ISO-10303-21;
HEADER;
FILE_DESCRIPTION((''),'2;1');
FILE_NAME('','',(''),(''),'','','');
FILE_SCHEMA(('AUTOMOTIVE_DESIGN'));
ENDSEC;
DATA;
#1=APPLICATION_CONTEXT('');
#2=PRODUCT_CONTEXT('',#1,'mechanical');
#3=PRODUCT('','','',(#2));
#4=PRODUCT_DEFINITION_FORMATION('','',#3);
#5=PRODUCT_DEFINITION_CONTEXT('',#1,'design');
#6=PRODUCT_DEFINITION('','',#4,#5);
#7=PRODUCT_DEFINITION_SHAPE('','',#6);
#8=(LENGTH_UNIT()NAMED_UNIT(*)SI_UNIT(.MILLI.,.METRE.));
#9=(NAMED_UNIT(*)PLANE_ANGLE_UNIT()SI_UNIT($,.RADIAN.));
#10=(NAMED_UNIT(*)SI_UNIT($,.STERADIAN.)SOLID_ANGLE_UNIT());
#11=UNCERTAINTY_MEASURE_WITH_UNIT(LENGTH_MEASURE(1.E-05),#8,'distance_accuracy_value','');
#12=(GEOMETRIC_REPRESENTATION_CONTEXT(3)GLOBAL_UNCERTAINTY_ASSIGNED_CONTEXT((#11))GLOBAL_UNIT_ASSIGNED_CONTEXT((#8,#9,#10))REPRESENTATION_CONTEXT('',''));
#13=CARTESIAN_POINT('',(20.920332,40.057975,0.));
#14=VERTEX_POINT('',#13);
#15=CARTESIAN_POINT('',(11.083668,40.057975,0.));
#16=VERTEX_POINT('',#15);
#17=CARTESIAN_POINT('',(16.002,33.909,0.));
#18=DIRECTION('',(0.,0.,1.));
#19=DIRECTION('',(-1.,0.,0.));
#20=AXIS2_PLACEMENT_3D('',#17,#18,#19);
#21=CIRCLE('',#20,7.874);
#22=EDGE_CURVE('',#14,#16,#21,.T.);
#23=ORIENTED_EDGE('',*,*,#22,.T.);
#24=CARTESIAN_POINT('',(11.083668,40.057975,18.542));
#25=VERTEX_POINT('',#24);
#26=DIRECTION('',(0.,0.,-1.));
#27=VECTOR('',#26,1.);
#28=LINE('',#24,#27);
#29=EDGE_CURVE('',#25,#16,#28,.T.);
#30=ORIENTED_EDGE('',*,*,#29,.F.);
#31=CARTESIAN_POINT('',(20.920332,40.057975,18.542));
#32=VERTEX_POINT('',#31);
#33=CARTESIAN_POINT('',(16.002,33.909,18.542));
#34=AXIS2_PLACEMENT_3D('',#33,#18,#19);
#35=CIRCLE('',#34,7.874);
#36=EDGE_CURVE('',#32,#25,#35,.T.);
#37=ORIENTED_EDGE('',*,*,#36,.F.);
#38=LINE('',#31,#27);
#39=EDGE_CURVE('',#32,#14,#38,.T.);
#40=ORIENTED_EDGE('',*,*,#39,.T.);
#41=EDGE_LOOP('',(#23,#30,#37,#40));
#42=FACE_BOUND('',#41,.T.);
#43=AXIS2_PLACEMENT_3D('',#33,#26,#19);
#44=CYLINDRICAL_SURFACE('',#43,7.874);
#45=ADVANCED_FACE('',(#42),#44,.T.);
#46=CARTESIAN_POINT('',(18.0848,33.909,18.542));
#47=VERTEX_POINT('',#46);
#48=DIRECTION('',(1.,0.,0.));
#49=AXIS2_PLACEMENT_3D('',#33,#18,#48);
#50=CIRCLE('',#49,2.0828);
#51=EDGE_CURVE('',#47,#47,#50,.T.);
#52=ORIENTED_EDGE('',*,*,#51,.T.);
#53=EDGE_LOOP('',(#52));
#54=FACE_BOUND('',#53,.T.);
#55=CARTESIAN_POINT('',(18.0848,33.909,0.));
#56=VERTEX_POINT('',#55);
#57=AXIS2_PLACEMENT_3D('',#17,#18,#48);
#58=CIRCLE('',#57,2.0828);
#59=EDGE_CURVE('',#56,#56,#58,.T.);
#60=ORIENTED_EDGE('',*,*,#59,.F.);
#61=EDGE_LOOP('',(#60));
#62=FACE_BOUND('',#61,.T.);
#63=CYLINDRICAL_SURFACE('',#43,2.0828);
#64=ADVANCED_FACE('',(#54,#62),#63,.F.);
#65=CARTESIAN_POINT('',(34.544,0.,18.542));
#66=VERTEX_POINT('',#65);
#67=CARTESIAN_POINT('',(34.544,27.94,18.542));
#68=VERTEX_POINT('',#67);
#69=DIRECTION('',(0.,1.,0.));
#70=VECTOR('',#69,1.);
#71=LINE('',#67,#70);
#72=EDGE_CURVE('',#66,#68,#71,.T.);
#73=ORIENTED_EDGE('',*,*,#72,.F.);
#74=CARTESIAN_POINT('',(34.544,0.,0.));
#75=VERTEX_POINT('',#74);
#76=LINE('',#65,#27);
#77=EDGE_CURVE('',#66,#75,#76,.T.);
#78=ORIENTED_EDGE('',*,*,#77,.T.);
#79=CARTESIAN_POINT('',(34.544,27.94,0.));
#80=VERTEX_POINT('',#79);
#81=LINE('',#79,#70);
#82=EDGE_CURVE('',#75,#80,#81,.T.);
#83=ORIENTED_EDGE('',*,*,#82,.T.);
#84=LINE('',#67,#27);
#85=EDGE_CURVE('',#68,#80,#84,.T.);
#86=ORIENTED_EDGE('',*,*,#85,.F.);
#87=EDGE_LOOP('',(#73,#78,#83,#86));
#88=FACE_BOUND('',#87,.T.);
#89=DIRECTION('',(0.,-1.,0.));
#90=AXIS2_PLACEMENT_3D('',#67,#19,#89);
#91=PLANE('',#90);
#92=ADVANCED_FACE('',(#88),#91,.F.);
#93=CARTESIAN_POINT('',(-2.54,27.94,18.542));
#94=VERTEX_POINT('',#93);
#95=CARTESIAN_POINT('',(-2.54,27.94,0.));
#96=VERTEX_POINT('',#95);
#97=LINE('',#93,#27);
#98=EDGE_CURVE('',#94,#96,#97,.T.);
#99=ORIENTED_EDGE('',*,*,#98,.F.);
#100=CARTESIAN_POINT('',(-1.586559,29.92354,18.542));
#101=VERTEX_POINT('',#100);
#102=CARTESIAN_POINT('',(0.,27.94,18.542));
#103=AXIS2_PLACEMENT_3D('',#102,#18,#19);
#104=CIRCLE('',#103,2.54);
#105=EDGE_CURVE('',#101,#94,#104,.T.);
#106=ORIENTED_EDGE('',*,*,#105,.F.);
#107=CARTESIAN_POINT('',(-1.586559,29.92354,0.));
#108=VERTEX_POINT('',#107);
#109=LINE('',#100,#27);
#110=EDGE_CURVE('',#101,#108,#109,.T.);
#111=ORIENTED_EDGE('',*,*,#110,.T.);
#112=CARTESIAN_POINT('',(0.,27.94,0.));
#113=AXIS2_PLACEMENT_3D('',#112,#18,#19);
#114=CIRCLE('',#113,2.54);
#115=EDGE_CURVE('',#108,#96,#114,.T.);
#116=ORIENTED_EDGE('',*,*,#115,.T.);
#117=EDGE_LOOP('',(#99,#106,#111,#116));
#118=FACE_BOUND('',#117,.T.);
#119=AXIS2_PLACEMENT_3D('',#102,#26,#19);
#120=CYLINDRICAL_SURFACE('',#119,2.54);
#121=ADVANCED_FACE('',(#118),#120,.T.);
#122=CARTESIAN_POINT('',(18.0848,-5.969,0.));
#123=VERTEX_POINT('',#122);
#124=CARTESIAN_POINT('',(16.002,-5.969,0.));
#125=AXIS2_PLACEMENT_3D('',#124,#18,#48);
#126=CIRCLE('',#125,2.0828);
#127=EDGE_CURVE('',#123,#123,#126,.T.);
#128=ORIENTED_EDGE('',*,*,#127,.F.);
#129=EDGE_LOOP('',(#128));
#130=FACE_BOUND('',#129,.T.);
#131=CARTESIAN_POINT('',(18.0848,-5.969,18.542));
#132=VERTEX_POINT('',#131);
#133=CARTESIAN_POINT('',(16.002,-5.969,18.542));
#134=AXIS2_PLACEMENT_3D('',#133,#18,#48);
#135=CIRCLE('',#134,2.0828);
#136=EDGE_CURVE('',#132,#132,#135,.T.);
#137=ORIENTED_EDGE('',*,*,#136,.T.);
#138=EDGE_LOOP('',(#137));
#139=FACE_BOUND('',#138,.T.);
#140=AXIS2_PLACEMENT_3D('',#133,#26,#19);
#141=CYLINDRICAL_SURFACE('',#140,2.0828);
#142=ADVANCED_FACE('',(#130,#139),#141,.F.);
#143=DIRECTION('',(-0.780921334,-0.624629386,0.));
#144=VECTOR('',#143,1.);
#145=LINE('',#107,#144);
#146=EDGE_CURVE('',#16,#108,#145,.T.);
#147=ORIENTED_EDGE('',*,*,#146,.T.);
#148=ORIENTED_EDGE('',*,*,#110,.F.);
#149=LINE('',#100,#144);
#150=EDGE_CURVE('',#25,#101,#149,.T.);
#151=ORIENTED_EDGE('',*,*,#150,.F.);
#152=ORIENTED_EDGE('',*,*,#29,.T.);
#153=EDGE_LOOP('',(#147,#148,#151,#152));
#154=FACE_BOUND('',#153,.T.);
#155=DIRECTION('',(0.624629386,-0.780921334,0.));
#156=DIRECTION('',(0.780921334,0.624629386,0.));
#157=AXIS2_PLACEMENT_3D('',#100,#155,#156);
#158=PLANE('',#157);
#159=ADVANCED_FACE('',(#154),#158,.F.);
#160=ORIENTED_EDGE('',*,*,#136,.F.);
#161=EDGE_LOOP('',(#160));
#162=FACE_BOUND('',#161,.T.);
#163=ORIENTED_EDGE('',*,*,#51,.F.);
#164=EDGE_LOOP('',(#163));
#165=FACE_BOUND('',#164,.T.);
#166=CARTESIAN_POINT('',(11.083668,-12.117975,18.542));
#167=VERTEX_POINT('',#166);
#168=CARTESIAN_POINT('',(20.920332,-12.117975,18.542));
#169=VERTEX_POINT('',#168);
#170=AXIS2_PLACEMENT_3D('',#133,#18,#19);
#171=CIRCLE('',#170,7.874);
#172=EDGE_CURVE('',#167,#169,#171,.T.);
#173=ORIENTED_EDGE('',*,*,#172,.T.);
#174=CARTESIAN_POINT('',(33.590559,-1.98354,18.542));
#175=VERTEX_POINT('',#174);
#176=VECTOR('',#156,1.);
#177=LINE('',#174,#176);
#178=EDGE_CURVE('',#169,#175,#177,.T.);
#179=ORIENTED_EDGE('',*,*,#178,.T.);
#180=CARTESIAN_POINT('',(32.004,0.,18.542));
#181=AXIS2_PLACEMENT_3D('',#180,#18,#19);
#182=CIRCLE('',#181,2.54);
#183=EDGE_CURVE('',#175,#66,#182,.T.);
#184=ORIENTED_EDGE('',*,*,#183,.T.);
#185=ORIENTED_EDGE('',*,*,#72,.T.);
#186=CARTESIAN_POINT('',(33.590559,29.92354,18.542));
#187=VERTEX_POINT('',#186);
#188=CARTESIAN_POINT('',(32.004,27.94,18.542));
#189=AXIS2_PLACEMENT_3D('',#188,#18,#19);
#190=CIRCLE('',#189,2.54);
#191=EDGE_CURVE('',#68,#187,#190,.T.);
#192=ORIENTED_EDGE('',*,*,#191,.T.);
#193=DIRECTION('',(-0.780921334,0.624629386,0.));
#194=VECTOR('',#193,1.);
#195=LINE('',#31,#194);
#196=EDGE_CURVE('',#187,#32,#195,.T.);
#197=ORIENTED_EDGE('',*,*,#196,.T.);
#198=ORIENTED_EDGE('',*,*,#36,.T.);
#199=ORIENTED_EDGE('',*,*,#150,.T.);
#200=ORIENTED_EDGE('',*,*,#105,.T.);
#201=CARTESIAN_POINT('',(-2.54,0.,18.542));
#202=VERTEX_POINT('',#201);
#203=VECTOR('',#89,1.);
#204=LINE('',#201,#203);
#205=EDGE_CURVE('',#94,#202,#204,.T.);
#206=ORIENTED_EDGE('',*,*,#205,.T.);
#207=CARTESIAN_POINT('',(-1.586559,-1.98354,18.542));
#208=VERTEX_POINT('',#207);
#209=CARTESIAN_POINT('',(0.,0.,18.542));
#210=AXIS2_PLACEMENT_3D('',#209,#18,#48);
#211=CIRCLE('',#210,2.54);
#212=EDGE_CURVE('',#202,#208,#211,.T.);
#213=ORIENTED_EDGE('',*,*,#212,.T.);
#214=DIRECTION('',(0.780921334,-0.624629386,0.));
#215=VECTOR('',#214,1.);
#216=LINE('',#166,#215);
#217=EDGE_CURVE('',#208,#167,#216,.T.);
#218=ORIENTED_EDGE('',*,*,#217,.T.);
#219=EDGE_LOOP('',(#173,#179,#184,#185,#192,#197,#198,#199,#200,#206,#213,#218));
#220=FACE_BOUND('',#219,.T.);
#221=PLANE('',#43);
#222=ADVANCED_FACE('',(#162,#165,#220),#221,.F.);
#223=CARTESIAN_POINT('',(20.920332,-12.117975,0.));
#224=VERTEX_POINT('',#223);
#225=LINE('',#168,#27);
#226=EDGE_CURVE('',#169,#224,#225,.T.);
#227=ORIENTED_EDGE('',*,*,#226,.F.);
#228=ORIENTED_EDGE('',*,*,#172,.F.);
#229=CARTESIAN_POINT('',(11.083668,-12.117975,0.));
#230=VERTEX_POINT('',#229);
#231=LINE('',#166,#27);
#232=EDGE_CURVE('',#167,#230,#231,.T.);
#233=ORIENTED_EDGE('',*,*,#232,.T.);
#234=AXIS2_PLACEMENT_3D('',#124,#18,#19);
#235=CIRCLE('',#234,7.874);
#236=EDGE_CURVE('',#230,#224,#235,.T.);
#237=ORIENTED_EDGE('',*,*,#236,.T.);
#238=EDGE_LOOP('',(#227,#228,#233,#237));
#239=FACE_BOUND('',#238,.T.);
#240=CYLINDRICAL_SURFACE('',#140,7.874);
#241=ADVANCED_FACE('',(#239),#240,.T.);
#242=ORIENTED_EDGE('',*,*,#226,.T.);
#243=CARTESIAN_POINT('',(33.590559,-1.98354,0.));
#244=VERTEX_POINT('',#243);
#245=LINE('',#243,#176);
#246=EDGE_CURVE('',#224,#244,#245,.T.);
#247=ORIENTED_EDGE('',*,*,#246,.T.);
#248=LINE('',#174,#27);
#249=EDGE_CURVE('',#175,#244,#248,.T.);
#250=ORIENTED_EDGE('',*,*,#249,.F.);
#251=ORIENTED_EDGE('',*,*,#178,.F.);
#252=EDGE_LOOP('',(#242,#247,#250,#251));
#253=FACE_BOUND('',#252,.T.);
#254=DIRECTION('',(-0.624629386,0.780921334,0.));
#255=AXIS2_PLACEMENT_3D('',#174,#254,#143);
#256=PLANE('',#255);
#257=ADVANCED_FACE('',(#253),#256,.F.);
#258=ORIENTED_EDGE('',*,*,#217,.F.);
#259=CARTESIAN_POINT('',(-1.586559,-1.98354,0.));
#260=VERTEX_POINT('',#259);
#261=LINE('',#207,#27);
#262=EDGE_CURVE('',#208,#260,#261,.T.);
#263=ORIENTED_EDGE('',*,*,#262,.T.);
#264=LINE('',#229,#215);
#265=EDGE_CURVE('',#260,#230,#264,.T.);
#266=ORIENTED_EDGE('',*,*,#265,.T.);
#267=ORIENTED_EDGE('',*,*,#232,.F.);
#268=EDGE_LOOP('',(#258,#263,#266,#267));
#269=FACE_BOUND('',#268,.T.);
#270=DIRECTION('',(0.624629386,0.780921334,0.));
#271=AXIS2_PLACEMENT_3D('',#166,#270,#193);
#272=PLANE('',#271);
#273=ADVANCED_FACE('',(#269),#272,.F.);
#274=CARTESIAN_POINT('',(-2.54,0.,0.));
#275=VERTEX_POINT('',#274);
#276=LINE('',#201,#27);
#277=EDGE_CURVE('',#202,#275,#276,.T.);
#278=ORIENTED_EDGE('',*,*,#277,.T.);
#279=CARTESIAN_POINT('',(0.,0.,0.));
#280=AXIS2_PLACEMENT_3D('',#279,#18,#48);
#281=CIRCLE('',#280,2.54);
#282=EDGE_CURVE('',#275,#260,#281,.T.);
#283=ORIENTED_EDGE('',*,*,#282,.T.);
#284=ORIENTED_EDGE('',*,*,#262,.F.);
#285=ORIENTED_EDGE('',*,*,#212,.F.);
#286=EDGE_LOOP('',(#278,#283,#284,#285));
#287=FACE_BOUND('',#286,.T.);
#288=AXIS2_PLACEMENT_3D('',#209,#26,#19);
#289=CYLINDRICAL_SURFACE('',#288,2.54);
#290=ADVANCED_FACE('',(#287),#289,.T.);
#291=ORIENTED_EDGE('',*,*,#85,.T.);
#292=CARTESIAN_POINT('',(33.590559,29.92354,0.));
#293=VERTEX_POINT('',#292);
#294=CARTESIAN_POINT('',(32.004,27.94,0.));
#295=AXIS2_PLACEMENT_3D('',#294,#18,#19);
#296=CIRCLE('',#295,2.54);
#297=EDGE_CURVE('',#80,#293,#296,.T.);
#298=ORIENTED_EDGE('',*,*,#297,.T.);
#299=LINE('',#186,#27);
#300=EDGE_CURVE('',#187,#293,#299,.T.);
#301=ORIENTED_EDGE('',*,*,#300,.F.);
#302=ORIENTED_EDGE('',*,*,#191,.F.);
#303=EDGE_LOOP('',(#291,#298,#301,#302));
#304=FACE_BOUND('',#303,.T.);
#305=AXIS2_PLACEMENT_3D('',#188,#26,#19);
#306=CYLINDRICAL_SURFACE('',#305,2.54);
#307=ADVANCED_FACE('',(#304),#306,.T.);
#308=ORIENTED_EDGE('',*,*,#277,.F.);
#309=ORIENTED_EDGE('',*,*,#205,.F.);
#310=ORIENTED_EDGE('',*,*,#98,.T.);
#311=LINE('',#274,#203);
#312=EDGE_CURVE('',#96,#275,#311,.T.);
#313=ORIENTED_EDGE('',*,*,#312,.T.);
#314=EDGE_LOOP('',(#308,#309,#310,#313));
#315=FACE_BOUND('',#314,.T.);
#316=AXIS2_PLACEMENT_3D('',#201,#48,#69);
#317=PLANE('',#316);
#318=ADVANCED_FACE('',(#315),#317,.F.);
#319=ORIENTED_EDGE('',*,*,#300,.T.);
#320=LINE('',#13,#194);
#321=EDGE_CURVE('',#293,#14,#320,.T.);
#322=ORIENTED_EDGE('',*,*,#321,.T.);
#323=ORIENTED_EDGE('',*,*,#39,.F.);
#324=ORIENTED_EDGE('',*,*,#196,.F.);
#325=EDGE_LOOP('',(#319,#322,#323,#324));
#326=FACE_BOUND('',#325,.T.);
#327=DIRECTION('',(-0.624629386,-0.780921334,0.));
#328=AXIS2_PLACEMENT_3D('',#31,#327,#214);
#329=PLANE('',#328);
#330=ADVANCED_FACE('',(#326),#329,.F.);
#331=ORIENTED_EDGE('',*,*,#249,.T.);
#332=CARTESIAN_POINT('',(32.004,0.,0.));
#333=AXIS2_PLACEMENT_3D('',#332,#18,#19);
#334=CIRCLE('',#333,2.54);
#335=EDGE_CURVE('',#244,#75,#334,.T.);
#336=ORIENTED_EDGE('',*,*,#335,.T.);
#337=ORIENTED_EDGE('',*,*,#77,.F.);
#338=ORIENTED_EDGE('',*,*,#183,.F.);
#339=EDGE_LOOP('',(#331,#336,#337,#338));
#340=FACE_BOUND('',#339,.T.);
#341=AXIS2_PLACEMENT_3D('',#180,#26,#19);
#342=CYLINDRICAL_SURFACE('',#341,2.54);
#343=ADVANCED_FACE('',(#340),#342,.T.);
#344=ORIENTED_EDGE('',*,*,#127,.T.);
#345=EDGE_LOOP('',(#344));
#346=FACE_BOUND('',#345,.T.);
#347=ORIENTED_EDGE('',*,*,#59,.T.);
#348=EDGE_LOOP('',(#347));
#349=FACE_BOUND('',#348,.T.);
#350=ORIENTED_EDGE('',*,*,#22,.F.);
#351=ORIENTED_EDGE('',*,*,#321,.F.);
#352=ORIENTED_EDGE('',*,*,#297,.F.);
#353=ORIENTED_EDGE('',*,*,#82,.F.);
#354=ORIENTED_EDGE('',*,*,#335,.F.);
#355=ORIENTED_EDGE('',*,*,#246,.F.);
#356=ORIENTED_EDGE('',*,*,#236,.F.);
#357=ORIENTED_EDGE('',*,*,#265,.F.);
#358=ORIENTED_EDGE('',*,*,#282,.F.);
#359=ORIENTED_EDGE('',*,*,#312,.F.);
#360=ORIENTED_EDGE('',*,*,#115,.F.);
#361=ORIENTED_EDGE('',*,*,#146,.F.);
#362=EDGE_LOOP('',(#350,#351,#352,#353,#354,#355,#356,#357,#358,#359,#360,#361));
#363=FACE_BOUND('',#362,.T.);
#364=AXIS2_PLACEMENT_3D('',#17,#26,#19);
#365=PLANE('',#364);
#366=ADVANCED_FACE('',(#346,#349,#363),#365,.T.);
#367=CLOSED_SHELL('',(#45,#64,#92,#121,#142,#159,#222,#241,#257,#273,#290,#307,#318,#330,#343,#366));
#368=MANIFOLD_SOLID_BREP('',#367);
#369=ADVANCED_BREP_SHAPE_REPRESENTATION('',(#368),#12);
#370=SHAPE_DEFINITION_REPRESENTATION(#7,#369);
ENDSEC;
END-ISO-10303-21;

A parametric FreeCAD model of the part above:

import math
import FreeCAD as App
import Part
import Sketcher
Q = App.Units.Quantity

doc = App.newDocument("Part")
params = doc.addObject("Spreadsheet::Sheet", "Params")
for row, (alias, value) in enumerate([
    ("sketch1_radius", "0.1 in"),
    ("sketch1_radius2", "0.31 in"),
    ("sketch1_diameter", "0.164 in"),
    ("sketch1_height", "1.1 in"),
    ("pad1_length", "0.73 in"),
], start=1):
    params.set(f"A{row}", alias)
    params.set(f"B{row}", "=" + value)
    params.setAlias(f"B{row}", alias)

body = doc.addObject("PartDesign::Body", "Body")

sketch1 = doc.addObject("Sketcher::SketchObject", "Sketch")
body.addObject(sketch1)
sketch1.AttachmentSupport = (doc.XY_Plane, [""])
sketch1.MapMode = "FlatFace"
sketch1.addGeometry([
    Part.LineSegment(App.Vector(-2.5, 27.9, 0), App.Vector(-2.5, 0, 0)),
    Part.ArcOfCircle(Part.Circle(App.Vector(0, 0, 0), App.Vector(0, 0, 1), 2.5), math.radians(-180), math.radians(-129)),
    Part.LineSegment(App.Vector(-1.6, -2, 0), App.Vector(11.1, -12.1, 0)),
    Part.ArcOfCircle(Part.Circle(App.Vector(16, -6, 0), App.Vector(0, 0, 1), 7.9), math.radians(-129), math.radians(-51)),
    Part.LineSegment(App.Vector(20.9, -12.1, 0), App.Vector(33.6, -2, 0)),
    Part.ArcOfCircle(Part.Circle(App.Vector(32, 0, 0), App.Vector(0, 0, 1), 2.5), math.radians(-51), math.radians(0)),
    Part.LineSegment(App.Vector(34.5, 0, 0), App.Vector(34.5, 27.9, 0)),
    Part.ArcOfCircle(Part.Circle(App.Vector(32, 27.9, 0), App.Vector(0, 0, 1), 2.5), math.radians(0), math.radians(51)),
    Part.LineSegment(App.Vector(33.6, 29.9, 0), App.Vector(20.9, 40.1, 0)),
    Part.ArcOfCircle(Part.Circle(App.Vector(16, 33.9, 0), App.Vector(0, 0, 1), 7.9), math.radians(51), math.radians(129)),
    Part.LineSegment(App.Vector(11.1, 40.1, 0), App.Vector(-1.6, 29.9, 0)),
    Part.ArcOfCircle(Part.Circle(App.Vector(0, 27.9, 0), App.Vector(0, 0, 1), 2.5), math.radians(129), math.radians(180)),
    Part.Circle(App.Vector(16, -6, 0), App.Vector(0, 0, 1), 2.1),
    Part.Circle(App.Vector(16, 33.9, 0), App.Vector(0, 0, 1), 2.1),
], False)
sketch1.addConstraint([
    Sketcher.Constraint("Tangent", 0, 2, 1, 1),
    Sketcher.Constraint("Tangent", 1, 2, 2, 1),
    Sketcher.Constraint("Tangent", 2, 2, 3, 1),
    Sketcher.Constraint("Tangent", 3, 2, 4, 1),
    Sketcher.Constraint("Tangent", 4, 2, 5, 1),
    Sketcher.Constraint("Tangent", 5, 2, 6, 1),
    Sketcher.Constraint("Tangent", 6, 2, 7, 1),
    Sketcher.Constraint("Tangent", 7, 2, 8, 1),
    Sketcher.Constraint("Tangent", 8, 2, 9, 1),
    Sketcher.Constraint("Tangent", 9, 2, 10, 1),
    Sketcher.Constraint("Tangent", 10, 2, 11, 1),
    Sketcher.Constraint("Tangent", 11, 2, 0, 1),
    Sketcher.Constraint("Vertical", 0),
    Sketcher.Constraint("Vertical", 6),
    Sketcher.Constraint("Coincident", 1, 3, -1, 1),
    Sketcher.Constraint("Coincident", 12, 3, 3, 3),
    Sketcher.Constraint("Coincident", 13, 3, 9, 3),
    Sketcher.Constraint("Equal", 1, 5),
    Sketcher.Constraint("Equal", 5, 7),
    Sketcher.Constraint("Equal", 3, 9),
    Sketcher.Constraint("Equal", 7, 11),
    Sketcher.Constraint("Equal", 12, 13),
    Sketcher.Constraint("PointOnObject", 5, 3, -1),
    Sketcher.Constraint("Parallel", 2, 8),
    Sketcher.Constraint("Parallel", 4, 10),
    Sketcher.Constraint("Horizontal", 7, 3, 11, 3),
    Sketcher.Constraint("Horizontal", 2, 2, 3, 2),
    Sketcher.Constraint("Radius", 1, Q("0.1 in")),
    Sketcher.Constraint("Radius", 3, Q("0.31 in")),
    Sketcher.Constraint("Diameter", 12, Q("0.164 in")),
    Sketcher.Constraint("DistanceY", 0, 2, 0, 1, Q("1.1 in")),
    Sketcher.Constraint("DistanceX", -1, 1, 3, 3, Q("0.63 in")),
    Sketcher.Constraint("DistanceY", 3, 3, 9, 3, Q("1.57 in")),
])
sketch1.setExpression("Constraints[27]", "Params.sketch1_radius")
sketch1.setExpression("Constraints[28]", "Params.sketch1_radius2")
sketch1.setExpression("Constraints[29]", "Params.sketch1_diameter")
sketch1.setExpression("Constraints[30]", "Params.sketch1_height")
pad1 = doc.addObject("PartDesign::Pad", "Pad")
body.addObject(pad1)
pad1.Profile = sketch1
pad1.setExpression("Length", "Params.pad1_length")

doc.recompute()
